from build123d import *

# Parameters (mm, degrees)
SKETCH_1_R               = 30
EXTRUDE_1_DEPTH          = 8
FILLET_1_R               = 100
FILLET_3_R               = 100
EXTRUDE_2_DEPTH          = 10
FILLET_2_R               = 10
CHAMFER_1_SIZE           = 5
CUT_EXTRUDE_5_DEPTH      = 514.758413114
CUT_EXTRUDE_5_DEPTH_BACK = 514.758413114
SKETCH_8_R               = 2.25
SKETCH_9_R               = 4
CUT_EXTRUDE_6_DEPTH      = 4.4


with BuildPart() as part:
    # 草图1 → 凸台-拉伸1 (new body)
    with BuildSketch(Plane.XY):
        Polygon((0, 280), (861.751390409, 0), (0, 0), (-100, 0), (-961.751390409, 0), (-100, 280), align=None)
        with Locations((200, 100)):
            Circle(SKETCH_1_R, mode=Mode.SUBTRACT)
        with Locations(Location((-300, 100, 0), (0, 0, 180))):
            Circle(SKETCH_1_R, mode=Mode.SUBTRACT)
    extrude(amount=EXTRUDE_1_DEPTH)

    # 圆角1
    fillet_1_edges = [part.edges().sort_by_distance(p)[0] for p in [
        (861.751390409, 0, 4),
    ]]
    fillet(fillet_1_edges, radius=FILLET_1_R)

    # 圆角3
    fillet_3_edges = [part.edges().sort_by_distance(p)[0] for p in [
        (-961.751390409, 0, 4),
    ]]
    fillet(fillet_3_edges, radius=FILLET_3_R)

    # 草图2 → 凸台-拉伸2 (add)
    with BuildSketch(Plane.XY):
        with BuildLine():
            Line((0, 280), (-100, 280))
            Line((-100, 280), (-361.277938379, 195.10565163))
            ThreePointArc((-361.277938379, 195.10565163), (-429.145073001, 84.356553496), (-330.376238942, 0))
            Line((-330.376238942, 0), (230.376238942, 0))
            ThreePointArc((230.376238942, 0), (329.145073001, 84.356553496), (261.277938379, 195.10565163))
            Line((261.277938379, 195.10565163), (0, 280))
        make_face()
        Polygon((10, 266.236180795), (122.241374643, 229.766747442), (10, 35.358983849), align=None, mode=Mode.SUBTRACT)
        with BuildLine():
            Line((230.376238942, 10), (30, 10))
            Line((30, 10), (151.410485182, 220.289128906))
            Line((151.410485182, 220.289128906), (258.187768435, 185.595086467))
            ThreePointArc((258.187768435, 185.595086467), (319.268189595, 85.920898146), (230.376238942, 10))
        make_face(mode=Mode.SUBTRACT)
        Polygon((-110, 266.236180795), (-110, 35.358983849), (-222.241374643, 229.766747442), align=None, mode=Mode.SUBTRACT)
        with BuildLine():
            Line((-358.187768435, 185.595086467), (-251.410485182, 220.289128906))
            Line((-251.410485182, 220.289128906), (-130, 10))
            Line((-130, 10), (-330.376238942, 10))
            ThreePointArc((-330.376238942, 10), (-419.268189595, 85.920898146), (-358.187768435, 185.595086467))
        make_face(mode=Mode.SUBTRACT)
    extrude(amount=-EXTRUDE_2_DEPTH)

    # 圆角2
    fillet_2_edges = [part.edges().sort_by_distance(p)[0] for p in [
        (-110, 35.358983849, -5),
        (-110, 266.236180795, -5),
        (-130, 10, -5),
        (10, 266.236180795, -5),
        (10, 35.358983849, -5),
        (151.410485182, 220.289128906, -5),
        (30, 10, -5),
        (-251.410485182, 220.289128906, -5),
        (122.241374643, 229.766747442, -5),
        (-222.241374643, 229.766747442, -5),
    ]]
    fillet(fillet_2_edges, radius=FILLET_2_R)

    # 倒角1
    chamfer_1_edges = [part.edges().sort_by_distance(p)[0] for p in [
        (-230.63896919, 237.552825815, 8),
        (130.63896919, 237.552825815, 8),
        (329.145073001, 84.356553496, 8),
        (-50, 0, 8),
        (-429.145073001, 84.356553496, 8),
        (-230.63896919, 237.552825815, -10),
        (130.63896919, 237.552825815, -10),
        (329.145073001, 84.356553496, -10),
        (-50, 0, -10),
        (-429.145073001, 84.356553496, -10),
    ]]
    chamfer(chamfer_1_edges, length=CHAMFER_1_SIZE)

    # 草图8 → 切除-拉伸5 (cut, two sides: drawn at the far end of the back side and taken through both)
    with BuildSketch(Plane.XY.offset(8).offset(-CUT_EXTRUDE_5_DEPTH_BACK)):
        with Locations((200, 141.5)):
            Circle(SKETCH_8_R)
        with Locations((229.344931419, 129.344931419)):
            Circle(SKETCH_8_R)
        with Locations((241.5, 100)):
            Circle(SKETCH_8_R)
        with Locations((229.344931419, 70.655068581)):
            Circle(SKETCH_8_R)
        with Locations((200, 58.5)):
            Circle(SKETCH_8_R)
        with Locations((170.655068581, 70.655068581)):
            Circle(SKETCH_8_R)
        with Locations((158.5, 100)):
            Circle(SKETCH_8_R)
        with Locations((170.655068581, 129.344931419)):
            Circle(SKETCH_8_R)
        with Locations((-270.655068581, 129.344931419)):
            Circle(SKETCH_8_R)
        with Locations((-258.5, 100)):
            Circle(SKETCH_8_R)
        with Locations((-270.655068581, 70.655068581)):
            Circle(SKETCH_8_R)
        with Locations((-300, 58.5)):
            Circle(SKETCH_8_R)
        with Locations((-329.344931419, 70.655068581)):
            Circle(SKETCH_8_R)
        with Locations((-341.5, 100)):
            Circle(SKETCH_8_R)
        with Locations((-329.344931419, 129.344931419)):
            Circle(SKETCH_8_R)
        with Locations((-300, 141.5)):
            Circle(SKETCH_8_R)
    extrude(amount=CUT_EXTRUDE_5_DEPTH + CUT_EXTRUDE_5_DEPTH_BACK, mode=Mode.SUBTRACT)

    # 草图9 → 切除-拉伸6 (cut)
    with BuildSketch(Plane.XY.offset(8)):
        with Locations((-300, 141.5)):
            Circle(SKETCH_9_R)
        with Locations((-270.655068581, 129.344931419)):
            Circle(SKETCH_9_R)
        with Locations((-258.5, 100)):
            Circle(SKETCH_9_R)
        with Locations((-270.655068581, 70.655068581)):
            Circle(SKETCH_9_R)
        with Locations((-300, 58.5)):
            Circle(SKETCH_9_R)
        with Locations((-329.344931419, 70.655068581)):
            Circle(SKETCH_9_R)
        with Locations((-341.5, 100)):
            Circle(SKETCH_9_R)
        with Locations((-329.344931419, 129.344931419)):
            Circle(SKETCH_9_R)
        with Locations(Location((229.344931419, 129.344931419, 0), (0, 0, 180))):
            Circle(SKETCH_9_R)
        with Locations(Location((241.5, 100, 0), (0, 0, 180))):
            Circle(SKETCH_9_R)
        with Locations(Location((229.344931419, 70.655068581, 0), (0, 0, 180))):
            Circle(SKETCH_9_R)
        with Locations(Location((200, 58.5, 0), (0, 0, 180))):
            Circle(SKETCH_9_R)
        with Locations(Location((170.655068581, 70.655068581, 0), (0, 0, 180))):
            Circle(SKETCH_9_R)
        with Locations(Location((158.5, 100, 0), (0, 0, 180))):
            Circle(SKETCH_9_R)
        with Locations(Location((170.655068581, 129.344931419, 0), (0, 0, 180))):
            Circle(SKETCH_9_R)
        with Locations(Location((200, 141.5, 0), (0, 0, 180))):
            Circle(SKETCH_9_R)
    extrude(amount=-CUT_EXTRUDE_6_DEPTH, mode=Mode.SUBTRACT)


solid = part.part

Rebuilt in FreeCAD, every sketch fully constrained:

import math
import FreeCAD as App
import Part
import Sketcher
from FreeCAD import Vector
Q = App.Units.Quantity


def edges_at(feature, points):
    """Names of the edges that pass closest to the given points."""
    edges = feature.Shape.Edges
    near = lambda p: min(range(len(edges)), key=lambda i: edges[i].distToShape(Part.Vertex(*p))[0])
    return sorted({f"Edge{near(p) + 1}" for p in points})


def add_polygon(sketch, points):
    """Adds a closed chain of lines whose ends are joined by coincident constraints."""
    first, n = sketch.GeometryCount, len(points)
    for a, b in zip(points, points[1:] + points[:1]):
        sketch.addGeometry(Part.LineSegment(App.Vector(*a, 0), App.Vector(*b, 0)), False)
    for i in range(n):
        sketch.addConstraint(Sketcher.Constraint("Coincident", first + i, 2, first + (i + 1) % n, 1))

doc = App.newDocument("Part")
body = doc.addObject("PartDesign::Body", "Body")

# Sketch on XY plane
sketch1 = body.newObject("Sketcher::SketchObject", "Sketch")
sketch1.AttachmentSupport = (doc.getObject("XY_Plane"), [""])
sketch1.MapMode = "FlatFace"
add_polygon(sketch1, [(862, 0), (0, 280), (-100, 280), (-962, 0)])  # lines 0-3
sketch1.addGeometry(Part.Circle(Vector(200, 100, 0), Vector(0, 0, 1), 30), False)  # 4
sketch1.addGeometry(Part.Circle(Vector(-300, 100, 0), Vector(0, 0, 1), 30), False)  # 5
sketch1.addConstraint(Sketcher.Constraint("Horizontal", 1))
sketch1.addConstraint(Sketcher.Constraint("Horizontal", 3))
sketch1.addConstraint(Sketcher.Constraint("Equal", 4, 5))
sketch1.addConstraint(Sketcher.Constraint("PointOnObject", 0, 2, -2))
sketch1.addConstraint(Sketcher.Constraint("PointOnObject", 2, 2, -1))
sketch1.addConstraint(Sketcher.Constraint("Horizontal", 4, 3, 5, 3))
sketch1.addConstraint(Sketcher.Constraint("Equal", 0, 2))
sketch1.addConstraint(Sketcher.Constraint("Diameter", 4, 60.0))
sketch1.addConstraint(Sketcher.Constraint("DistanceX", 1, 2, 1, 1, 100.0))
sketch1.addConstraint(Sketcher.Constraint("Angle", 0, Q("162 deg")))
sketch1.addConstraint(Sketcher.Constraint("DistanceX", -1, 1, 4, 3, 200.0))
sketch1.addConstraint(Sketcher.Constraint("DistanceY", -1, 1, 4, 3, 100.0))
sketch1.addConstraint(Sketcher.Constraint("DistanceX", 5, 3, -1, 1, 300.0))
sketch1.addConstraint(Sketcher.Constraint("DistanceY", -1, 1, 0, 2, 280.0))
pad1 = body.newObject("PartDesign::Pad", "Pad")
pad1.Profile = sketch1
pad1.Length = 8
doc.recompute()

fillet = body.newObject("PartDesign::Fillet", "Fillet")
fillet.Base = (pad1, edges_at(pad1, [(861.751, 0, 4)]))
fillet.Radius = 100
doc.recompute()

fillet2 = body.newObject("PartDesign::Fillet", "Fillet001")
fillet2.Base = (fillet, edges_at(fillet, [(-961.751, 0, 4)]))
fillet2.Radius = 100

# Sketch on XY plane
sketch2 = body.newObject("Sketcher::SketchObject", "Sketch001")
sketch2.AttachmentSupport = (doc.getObject("XY_Plane"), [""])
sketch2.MapMode = "FlatFace"
sketch2.addGeometry(Part.LineSegment(Vector(0, 280, 0), Vector(-100, 280, 0)), False)  # 0
sketch2.addGeometry(Part.LineSegment(Vector(-100, 280, 0), Vector(-361, 195, 0)), False)  # 1
sketch2.addGeometry(Part.ArcOfCircle(Part.Circle(Vector(-330, 100, 0), Vector(0, 0, 1), 100), math.radians(108), math.radians(270)), False)  # 2
sketch2.addGeometry(Part.LineSegment(Vector(-330, 0, 0), Vector(230, 0, 0)), False)  # 3
sketch2.addGeometry(Part.ArcOfCircle(Part.Circle(Vector(230, 100, 0), Vector(0, 0, 1), 100), math.radians(-90), math.radians(72)), False)  # 4
sketch2.addGeometry(Part.LineSegment(Vector(261, 195, 0), Vector(0, 280, 0)), False)  # 5
sketch2.addGeometry(Part.ArcOfCircle(Part.Circle(Vector(-330, 100, 0), Vector(0, 0, 1), 90), math.radians(108), math.radians(270)), False)  # 6
sketch2.addGeometry(Part.LineSegment(Vector(-358, 186, 0), Vector(-251, 220, 0)), False)  # 7
sketch2.addGeometry(Part.LineSegment(Vector(-251, 220, 0), Vector(-130, 10, 0)), False)  # 8
sketch2.addGeometry(Part.LineSegment(Vector(-130, 10, 0), Vector(-330, 10, 0)), False)  # 9
sketch2.addGeometry(Part.ArcOfCircle(Part.Circle(Vector(230, 100, 0), Vector(0, 0, 1), 90), math.radians(-90), math.radians(72)), False)  # 10
sketch2.addGeometry(Part.LineSegment(Vector(230, 10, 0), Vector(30, 10, 0)), False)  # 11
sketch2.addGeometry(Part.LineSegment(Vector(30, 10, 0), Vector(151, 220, 0)), False)  # 12
sketch2.addGeometry(Part.LineSegment(Vector(151, 220, 0), Vector(258, 186, 0)), False)  # 13
add_polygon(sketch2, [(-222, 230), (-110, 266), (-110, 35)])  # lines 14-16
add_polygon(sketch2, [(10, 35), (10, 266), (122, 230)])  # lines 17-19
sketch2.addConstraint(Sketcher.Constraint("Coincident", 0, 2, 1, 1))
sketch2.addConstraint(Sketcher.Constraint("Tangent", 1, 2, 2, 1))
sketch2.addConstraint(Sketcher.Constraint("Tangent", 2, 2, 3, 1))
sketch2.addConstraint(Sketcher.Constraint("Tangent", 3, 2, 4, 1))
sketch2.addConstraint(Sketcher.Constraint("Tangent", 4, 2, 5, 1))
sketch2.addConstraint(Sketcher.Constraint("Coincident", 5, 2, 0, 1))
sketch2.addConstraint(Sketcher.Constraint("Tangent", 6, 1, 7, 1))
sketch2.addConstraint(Sketcher.Constraint("Coincident", 7, 2, 8, 1))
sketch2.addConstraint(Sketcher.Constraint("Coincident", 8, 2, 9, 1))
sketch2.addConstraint(Sketcher.Constraint("Tangent", 9, 2, 6, 2))
sketch2.addConstraint(Sketcher.Constraint("Tangent", 10, 1, 11, 1))
sketch2.addConstraint(Sketcher.Constraint("Coincident", 11, 2, 12, 1))
sketch2.addConstraint(Sketcher.Constraint("Coincident", 12, 2, 13, 1))
sketch2.addConstraint(Sketcher.Constraint("Tangent", 13, 2, 10, 2))
sketch2.addConstraint(Sketcher.Constraint("Horizontal", 0))
sketch2.addConstraint(Sketcher.Constraint("Horizontal", 3))
sketch2.addConstraint(Sketcher.Constraint("Horizontal", 9))
sketch2.addConstraint(Sketcher.Constraint("Horizontal", 11))
sketch2.addConstraint(Sketcher.Constraint("Vertical", 15))
sketch2.addConstraint(Sketcher.Constraint("Vertical", 17))
sketch2.addConstraint(Sketcher.Constraint("Coincident", 6, 3, 2, 3))
sketch2.addConstraint(Sketcher.Constraint("Coincident", 10, 3, 4, 3))
sketch2.addConstraint(Sketcher.Constraint("Equal", 2, 4))
sketch2.addConstraint(Sketcher.Constraint("Equal", 6, 10))
sketch2.addConstraint(Sketcher.Constraint("PointOnObject", 2, 2, -1))
sketch2.addConstraint(Sketcher.Constraint("PointOnObject", 5, 2, -2))
sketch2.addConstraint(Sketcher.Constraint("Parallel", 1, 7))
sketch2.addConstraint(Sketcher.Constraint("Parallel", 5, 13))
sketch2.addConstraint(Sketcher.Constraint("Parallel", 7, 14))
sketch2.addConstraint(Sketcher.Constraint("Parallel", 8, 16))
sketch2.addConstraint(Sketcher.Constraint("Parallel", 13, 18))
sketch2.addConstraint(Sketcher.Constraint("Parallel", 12, 19))
sketch2.addConstraint(Sketcher.Constraint("Horizontal", 7, 2, 12, 2))
sketch2.addConstraint(Sketcher.Constraint("Horizontal", 14, 2, 17, 2))
sketch2.addConstraint(Sketcher.Constraint("Horizontal", 16, 2, 18, 2))
sketch2.addConstraint(Sketcher.Constraint("Horizontal", 15, 2, 19, 2))
sketch2.addConstraint(Sketcher.Constraint("Equal", 9, 11))
sketch2.addConstraint(Sketcher.Constraint("Radius", 2, 100.0))
sketch2.addConstraint(Sketcher.Constraint("Radius", 6, 90.0))
sketch2.addConstraint(Sketcher.Constraint("DistanceX", 0, 2, 0, 1, 100.0))
sketch2.addConstraint(Sketcher.Constraint("Angle", 1, Q("-162 deg")))
sketch2.addConstraint(Sketcher.Constraint("Angle", 8, Q("-60 deg")))
sketch2.addConstraint(Sketcher.Constraint("DistanceY", -1, 1, 0, 2, 280.0))
sketch2.addConstraint(Sketcher.Constraint("DistanceX", 8, 2, -1, 1, 130.0))
sketch2.addConstraint(Sketcher.Constraint("DistanceX", 14, 2, -1, 1, 110.0))
sketch2.addConstraint(Sketcher.Constraint("DistanceX", -1, 1, 17, 2, 10.0))
sketch2.addConstraint(Sketcher.Constraint("Distance", 16, 224.482749))
sketch2.addConstraint(Sketcher.Constraint("DistanceY", -1, 1, 14, 2, 266.236181))
pad2 = body.newObject("PartDesign::Pad", "Pad001")
pad2.Profile = sketch2
pad2.Length = 10
pad2.Reversed = True
doc.recompute()

fillet3 = body.newObject("PartDesign::Fillet", "Fillet002")
fillet3.Base = (pad2, edges_at(pad2, [
    (-110, 35.359, -5),
    (-110, 266.236, -5),
    (-130, 10, -5),
    (10, 266.236, -5),
    (10, 35.359, -5),
    (151.41, 220.289, -5),
    (30, 10, -5),
    (-251.41, 220.289, -5),
    (122.241, 229.767, -5),
    (-222.241, 229.767, -5),
]))
fillet3.Radius = 10
doc.recompute()

chamfer = body.newObject("PartDesign::Chamfer", "Chamfer")
chamfer.Base = (fillet3, edges_at(fillet3, [
    (-230.639, 237.553, 8),
    (130.639, 237.553, 8),
    (329.145, 84.357, 8),
    (-50, 0, 8),
    (-429.145, 84.357, 8),
    (-230.639, 237.553, -10),
    (130.639, 237.553, -10),
    (329.145, 84.357, -10),
    (-50, 0, -10),
    (-429.145, 84.357, -10),
]))
chamfer.Size = 5

# Sketch on XY plane
sketch3 = body.newObject("Sketcher::SketchObject", "Sketch002")
sketch3.AttachmentSupport = (doc.getObject("XY_Plane"), [""])
sketch3.MapMode = "FlatFace"
sketch3.AttachmentOffset = App.Placement(Vector(0, 0, 8), App.Rotation())
sketch3.addGeometry(Part.Circle(Vector(200, 141.5, 0), Vector(0, 0, 1), 2.2), False)
sketch3.addGeometry(Part.Circle(Vector(229.3, 129.3, 0), Vector(0, 0, 1), 2.2), False)
sketch3.addGeometry(Part.Circle(Vector(241.5, 100, 0), Vector(0, 0, 1), 2.2), False)
sketch3.addGeometry(Part.Circle(Vector(229.3, 70.7, 0), Vector(0, 0, 1), 2.2), False)
sketch3.addGeometry(Part.Circle(Vector(200, 58.5, 0), Vector(0, 0, 1), 2.2), False)
sketch3.addGeometry(Part.Circle(Vector(170.7, 70.7, 0), Vector(0, 0, 1), 2.2), False)
sketch3.addGeometry(Part.Circle(Vector(158.5, 100, 0), Vector(0, 0, 1), 2.2), False)
sketch3.addGeometry(Part.Circle(Vector(170.7, 129.3, 0), Vector(0, 0, 1), 2.2), False)
sketch3.addGeometry(Part.Circle(Vector(-270.7, 129.3, 0), Vector(0, 0, 1), 2.2), False)
sketch3.addGeometry(Part.Circle(Vector(-258.5, 100, 0), Vector(0, 0, 1), 2.2), False)
sketch3.addGeometry(Part.Circle(Vector(-270.7, 70.7, 0), Vector(0, 0, 1), 2.2), False)
sketch3.addGeometry(Part.Circle(Vector(-300, 58.5, 0), Vector(0, 0, 1), 2.2), False)
sketch3.addGeometry(Part.Circle(Vector(-329.3, 70.7, 0), Vector(0, 0, 1), 2.2), False)
sketch3.addGeometry(Part.Circle(Vector(-341.5, 100, 0), Vector(0, 0, 1), 2.2), False)
sketch3.addGeometry(Part.Circle(Vector(-329.3, 129.3, 0), Vector(0, 0, 1), 2.2), False)
sketch3.addGeometry(Part.Circle(Vector(-300, 141.5, 0), Vector(0, 0, 1), 2.2), False)
sketch3.addConstraint(Sketcher.Constraint("Equal", 0, 1))
sketch3.addConstraint(Sketcher.Constraint("Equal", 1, 2))
sketch3.addConstraint(Sketcher.Constraint("Equal", 2, 3))
sketch3.addConstraint(Sketcher.Constraint("Equal", 3, 4))
sketch3.addConstraint(Sketcher.Constraint("Equal", 4, 5))
sketch3.addConstraint(Sketcher.Constraint("Equal", 5, 6))
sketch3.addConstraint(Sketcher.Constraint("Equal", 6, 7))
sketch3.addConstraint(Sketcher.Constraint("Equal", 7, 8))
sketch3.addConstraint(Sketcher.Constraint("Equal", 8, 9))
sketch3.addConstraint(Sketcher.Constraint("Equal", 9, 10))
sketch3.addConstraint(Sketcher.Constraint("Equal", 10, 11))
sketch3.addConstraint(Sketcher.Constraint("Equal", 11, 12))
sketch3.addConstraint(Sketcher.Constraint("Equal", 12, 13))
sketch3.addConstraint(Sketcher.Constraint("Equal", 13, 14))
sketch3.addConstraint(Sketcher.Constraint("Equal", 14, 15))
sketch3.addConstraint(Sketcher.Constraint("Horizontal", 3, 3, 5, 3))
sketch3.addConstraint(Sketcher.Constraint("Horizontal", 2, 3, 6, 3))
sketch3.addConstraint(Sketcher.Constraint("Horizontal", 1, 3, 7, 3))
sketch3.addConstraint(Sketcher.Constraint("Horizontal", 7, 3, 8, 3))
sketch3.addConstraint(Sketcher.Constraint("Horizontal", 6, 3, 9, 3))
sketch3.addConstraint(Sketcher.Constraint("Horizontal", 5, 3, 10, 3))
sketch3.addConstraint(Sketcher.Constraint("Horizontal", 4, 3, 11, 3))
sketch3.addConstraint(Sketcher.Constraint("Horizontal", 10, 3, 12, 3))
sketch3.addConstraint(Sketcher.Constraint("Horizontal", 9, 3, 13, 3))
sketch3.addConstraint(Sketcher.Constraint("Horizontal", 8, 3, 14, 3))
sketch3.addConstraint(Sketcher.Constraint("Horizontal", 0, 3, 15, 3))
sketch3.addConstraint(Sketcher.Constraint("Vertical", 1, 3, 3, 3))
sketch3.addConstraint(Sketcher.Constraint("Vertical", 0, 3, 4, 3))
sketch3.addConstraint(Sketcher.Constraint("Vertical", 5, 3, 7, 3))
sketch3.addConstraint(Sketcher.Constraint("Vertical", 8, 3, 10, 3))
sketch3.addConstraint(Sketcher.Constraint("Vertical", 12, 3, 14, 3))
sketch3.addConstraint(Sketcher.Constraint("Vertical", 11, 3, 15, 3))
sketch3.addConstraint(Sketcher.Constraint("Diameter", 0, 4.5))
sketch3.addConstraint(Sketcher.Constraint("DistanceX", -1, 1, 0, 3, 200.0))
sketch3.addConstraint(Sketcher.Constraint("DistanceY", -1, 1, 2, 3, 100.0))
sketch3.addConstraint(Sketcher.Constraint("DistanceX", 11, 3, -1, 1, 300.0))
sketch3.addConstraint(Sketcher.Constraint("DistanceY", 4, 3, 0, 3, 83.0))
sketch3.addConstraint(Sketcher.Constraint("DistanceX", 9, 3, 6, 3, 417.0))
sketch3.addConstraint(Sketcher.Constraint("DistanceX", 13, 3, 9, 3, 83.0))
sketch3.addConstraint(Sketcher.Constraint("DistanceY", -1, 1, 0, 3, 141.5))
sketch3.addConstraint(Sketcher.Constraint("DistanceX", -1, 1, 2, 3, 241.5))
sketch3.addConstraint(Sketcher.Constraint("DistanceX", -1, 1, 6, 3, 158.5))
sketch3.addConstraint(Sketcher.Constraint("DistanceX", -1, 1, 1, 3, 229.344931))
sketch3.addConstraint(Sketcher.Constraint("DistanceY", -1, 1, 1, 3, 129.344931))
sketch3.addConstraint(Sketcher.Constraint("DistanceY", -1, 1, 3, 3, 70.655069))
sketch3.addConstraint(Sketcher.Constraint("DistanceX", -1, 1, 5, 3, 170.655069))
sketch3.addConstraint(Sketcher.Constraint("DistanceX", 8, 3, -1, 1, 270.655069))
sketch3.addConstraint(Sketcher.Constraint("DistanceX", 12, 3, -1, 1, 329.344931))
pocket1 = body.newObject("PartDesign::Pocket", "Pocket")
pocket1.Profile = sketch3
pocket1.Type = "ThroughAll"
pocket1.Midplane = True

# Sketch on XY plane
sketch4 = body.newObject("Sketcher::SketchObject", "Sketch003")
sketch4.AttachmentSupport = (doc.getObject("XY_Plane"), [""])
sketch4.MapMode = "FlatFace"
sketch4.AttachmentOffset = App.Placement(Vector(0, 0, 8), App.Rotation())
sketch4.addGeometry(Part.Circle(Vector(-300, 141.5, 0), Vector(0, 0, 1), 4), False)
sketch4.addGeometry(Part.Circle(Vector(-270.7, 129.3, 0), Vector(0, 0, 1), 4), False)
sketch4.addGeometry(Part.Circle(Vector(-258.5, 100, 0), Vector(0, 0, 1), 4), False)
sketch4.addGeometry(Part.Circle(Vector(-270.7, 70.7, 0), Vector(0, 0, 1), 4), False)
sketch4.addGeometry(Part.Circle(Vector(-300, 58.5, 0), Vector(0, 0, 1), 4), False)
sketch4.addGeometry(Part.Circle(Vector(-329.3, 70.7, 0), Vector(0, 0, 1), 4), False)
sketch4.addGeometry(Part.Circle(Vector(-341.5, 100, 0), Vector(0, 0, 1), 4), False)
sketch4.addGeometry(Part.Circle(Vector(-329.3, 129.3, 0), Vector(0, 0, 1), 4), False)
sketch4.addGeometry(Part.Circle(Vector(229.3, 129.3, 0), Vector(0, 0, 1), 4), False)
sketch4.addGeometry(Part.Circle(Vector(241.5, 100, 0), Vector(0, 0, 1), 4), False)
sketch4.addGeometry(Part.Circle(Vector(229.3, 70.7, 0), Vector(0, 0, 1), 4), False)
sketch4.addGeometry(Part.Circle(Vector(200, 58.5, 0), Vector(0, 0, 1), 4), False)
sketch4.addGeometry(Part.Circle(Vector(170.7, 70.7, 0), Vector(0, 0, 1), 4), False)
sketch4.addGeometry(Part.Circle(Vector(158.5, 100, 0), Vector(0, 0, 1), 4), False)
sketch4.addGeometry(Part.Circle(Vector(170.7, 129.3, 0), Vector(0, 0, 1), 4), False)
sketch4.addGeometry(Part.Circle(Vector(200, 141.5, 0), Vector(0, 0, 1), 4), False)
sketch4.addConstraint(Sketcher.Constraint("Equal", 0, 1))
sketch4.addConstraint(Sketcher.Constraint("Equal", 1, 2))
sketch4.addConstraint(Sketcher.Constraint("Equal", 2, 3))
sketch4.addConstraint(Sketcher.Constraint("Equal", 3, 4))
sketch4.addConstraint(Sketcher.Constraint("Equal", 4, 5))
sketch4.addConstraint(Sketcher.Constraint("Equal", 5, 6))
sketch4.addConstraint(Sketcher.Constraint("Equal", 6, 7))
sketch4.addConstraint(Sketcher.Constraint("Equal", 7, 8))
sketch4.addConstraint(Sketcher.Constraint("Equal", 8, 9))
sketch4.addConstraint(Sketcher.Constraint("Equal", 9, 10))
sketch4.addConstraint(Sketcher.Constraint("Equal", 10, 11))
sketch4.addConstraint(Sketcher.Constraint("Equal", 11, 12))
sketch4.addConstraint(Sketcher.Constraint("Equal", 12, 13))
sketch4.addConstraint(Sketcher.Constraint("Equal", 13, 14))
sketch4.addConstraint(Sketcher.Constraint("Equal", 14, 15))
sketch4.addConstraint(Sketcher.Constraint("Horizontal", 3, 3, 5, 3))
sketch4.addConstraint(Sketcher.Constraint("Horizontal", 2, 3, 6, 3))
sketch4.addConstraint(Sketcher.Constraint("Horizontal", 1, 3, 7, 3))
sketch4.addConstraint(Sketcher.Constraint("Horizontal", 7, 3, 8, 3))
sketch4.addConstraint(Sketcher.Constraint("Horizontal", 6, 3, 9, 3))
sketch4.addConstraint(Sketcher.Constraint("Horizontal", 5, 3, 10, 3))
sketch4.addConstraint(Sketcher.Constraint("Horizontal", 4, 3, 11, 3))
sketch4.addConstraint(Sketcher.Constraint("Horizontal", 10, 3, 12, 3))
sketch4.addConstraint(Sketcher.Constraint("Horizontal", 9, 3, 13, 3))
sketch4.addConstraint(Sketcher.Constraint("Horizontal", 8, 3, 14, 3))
sketch4.addConstraint(Sketcher.Constraint("Horizontal", 0, 3, 15, 3))
sketch4.addConstraint(Sketcher.Constraint("Vertical", 1, 3, 3, 3))
sketch4.addConstraint(Sketcher.Constraint("Vertical", 0, 3, 4, 3))
sketch4.addConstraint(Sketcher.Constraint("Vertical", 5, 3, 7, 3))
sketch4.addConstraint(Sketcher.Constraint("Vertical", 8, 3, 10, 3))
sketch4.addConstraint(Sketcher.Constraint("Vertical", 12, 3, 14, 3))
sketch4.addConstraint(Sketcher.Constraint("Vertical", 11, 3, 15, 3))
sketch4.addConstraint(Sketcher.Constraint("Diameter", 0, 8.0))
sketch4.addConstraint(Sketcher.Constraint("DistanceX", 0, 3, -1, 1, 300.0))
sketch4.addConstraint(Sketcher.Constraint("DistanceY", -1, 1, 2, 3, 100.0))
sketch4.addConstraint(Sketcher.Constraint("DistanceX", -1, 1, 11, 3, 200.0))
sketch4.addConstraint(Sketcher.Constraint("DistanceY", 4, 3, 0, 3, 83.0))
sketch4.addConstraint(Sketcher.Constraint("DistanceX", 1, 3, 8, 3, 500.0))
sketch4.addConstraint(Sketcher.Constraint("DistanceX", 2, 3, 9, 3, 500.0))
sketch4.addConstraint(Sketcher.Constraint("DistanceX", 13, 3, 9, 3, 83.0))
sketch4.addConstraint(Sketcher.Constraint("DistanceY", -1, 1, 0, 3, 141.5))
sketch4.addConstraint(Sketcher.Constraint("DistanceX", 2, 3, -1, 1, 258.5))
sketch4.addConstraint(Sketcher.Constraint("DistanceX", 6, 3, -1, 1, 341.5))
sketch4.addConstraint(Sketcher.Constraint("DistanceX", 1, 3, -1, 1, 270.655069))
sketch4.addConstraint(Sketcher.Constraint("DistanceY", -1, 1, 1, 3, 129.344931))
sketch4.addConstraint(Sketcher.Constraint("DistanceY", -1, 1, 3, 3, 70.655069))
sketch4.addConstraint(Sketcher.Constraint("DistanceX", 5, 3, -1, 1, 329.344931))
sketch4.addConstraint(Sketcher.Constraint("DistanceX", -1, 1, 12, 3, 170.655069))
pocket2 = body.newObject("PartDesign::Pocket", "Pocket001")
pocket2.Profile = sketch4
pocket2.Length = 4.4

doc.recompute()
